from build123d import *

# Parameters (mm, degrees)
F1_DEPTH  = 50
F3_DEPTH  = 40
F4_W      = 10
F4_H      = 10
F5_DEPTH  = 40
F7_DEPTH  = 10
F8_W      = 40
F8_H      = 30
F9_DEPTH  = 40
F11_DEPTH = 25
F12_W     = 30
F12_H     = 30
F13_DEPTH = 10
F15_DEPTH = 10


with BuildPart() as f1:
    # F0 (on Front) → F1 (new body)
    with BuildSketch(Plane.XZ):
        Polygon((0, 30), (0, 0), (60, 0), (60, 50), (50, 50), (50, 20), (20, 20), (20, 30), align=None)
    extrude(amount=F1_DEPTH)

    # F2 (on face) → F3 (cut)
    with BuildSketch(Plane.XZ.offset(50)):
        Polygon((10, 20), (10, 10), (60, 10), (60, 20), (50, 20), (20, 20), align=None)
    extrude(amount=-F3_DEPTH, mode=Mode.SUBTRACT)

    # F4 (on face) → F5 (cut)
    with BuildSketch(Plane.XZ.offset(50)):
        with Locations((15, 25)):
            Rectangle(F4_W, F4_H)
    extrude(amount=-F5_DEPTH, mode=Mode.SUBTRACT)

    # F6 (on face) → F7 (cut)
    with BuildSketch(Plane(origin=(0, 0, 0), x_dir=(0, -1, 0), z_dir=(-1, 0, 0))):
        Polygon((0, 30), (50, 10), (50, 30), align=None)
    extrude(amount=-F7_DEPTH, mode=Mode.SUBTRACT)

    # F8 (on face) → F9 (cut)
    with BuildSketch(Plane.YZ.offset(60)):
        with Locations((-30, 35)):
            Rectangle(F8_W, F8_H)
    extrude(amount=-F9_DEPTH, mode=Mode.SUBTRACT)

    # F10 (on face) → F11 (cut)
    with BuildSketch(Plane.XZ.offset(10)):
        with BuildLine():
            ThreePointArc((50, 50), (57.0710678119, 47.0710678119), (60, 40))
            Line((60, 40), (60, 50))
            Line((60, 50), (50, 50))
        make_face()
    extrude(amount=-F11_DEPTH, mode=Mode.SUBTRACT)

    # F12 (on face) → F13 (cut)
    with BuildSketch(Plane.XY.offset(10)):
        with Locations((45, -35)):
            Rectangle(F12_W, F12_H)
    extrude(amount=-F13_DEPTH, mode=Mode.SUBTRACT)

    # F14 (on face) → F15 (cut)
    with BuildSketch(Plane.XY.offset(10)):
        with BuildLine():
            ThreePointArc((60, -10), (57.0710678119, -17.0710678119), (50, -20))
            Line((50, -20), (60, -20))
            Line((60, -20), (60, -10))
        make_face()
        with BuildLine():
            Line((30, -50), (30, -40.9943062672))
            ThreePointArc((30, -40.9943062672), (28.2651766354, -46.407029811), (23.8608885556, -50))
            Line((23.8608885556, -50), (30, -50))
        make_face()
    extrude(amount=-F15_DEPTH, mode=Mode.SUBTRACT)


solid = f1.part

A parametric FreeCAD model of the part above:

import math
import FreeCAD as App
import Part
import Sketcher

V = App.Vector
Q = App.Units.Quantity


def add_polygon(sketch, points):
    """Adds a closed chain of lines whose ends are joined by coincident constraints."""
    first, n = sketch.GeometryCount, len(points)
    for a, b in zip(points, points[1:] + points[:1]):
        sketch.addGeometry(Part.LineSegment(App.Vector(*a, 0), App.Vector(*b, 0)), False)
    for i in range(n):
        sketch.addConstraint(Sketcher.Constraint("Coincident", first + i, 2, first + (i + 1) % n, 1))

doc = App.newDocument("Part")
body = doc.addObject("PartDesign::Body", "Body")

# Sketch on XZ plane
sketch1 = body.newObject("Sketcher::SketchObject", "Sketch")
sketch1.AttachmentSupport = (doc.getObject("XZ_Plane"), [""])
sketch1.MapMode = "FlatFace"
add_polygon(sketch1, [(0, 30), (0, 0), (60, 0), (60, 50), (50, 50), (50, 20), (20, 20), (20, 30)])  # lines 0-7
sketch1.addConstraint([
    Sketcher.Constraint("Vertical", 0),
    Sketcher.Constraint("Horizontal", 1),
    Sketcher.Constraint("Vertical", 2),
    Sketcher.Constraint("Horizontal", 3),
    Sketcher.Constraint("Vertical", 4),
    Sketcher.Constraint("Horizontal", 5),
    Sketcher.Constraint("Vertical", 6),
    Sketcher.Constraint("Horizontal", 7),
    Sketcher.Constraint("Coincident", 0, 2, -1, 1),
    Sketcher.Constraint("Equal", 5, 0),
    Sketcher.Constraint("Equal", 0, 4),
    Sketcher.Constraint("Equal", 3, 6),
    Sketcher.Constraint("DistanceX", 1, 1, 1, 2, Q("60 mm")),
    Sketcher.Constraint("DistanceX", 3, 2, 3, 1, Q("10 mm")),
    Sketcher.Constraint("DistanceX", 5, 2, 5, 1, Q("30 mm")),
])
pad1 = body.newObject("PartDesign::Pad", "Pad")
pad1.Profile = sketch1
pad1.Length = 50

# Sketch on XZ plane
sketch2 = body.newObject("Sketcher::SketchObject", "Sketch001")
sketch2.AttachmentSupport = (doc.getObject("XZ_Plane"), [""])
sketch2.MapMode = "FlatFace"
sketch2.AttachmentOffset = App.Placement(V(0, 0, 50), App.Rotation())
add_polygon(sketch2, [(10, 20), (10, 10), (60, 10), (60, 20)])  # lines 0-3
sketch2.addConstraint([
    Sketcher.Constraint("Vertical", 0),
    Sketcher.Constraint("Horizontal", 1),
    Sketcher.Constraint("Vertical", 2),
    Sketcher.Constraint("Horizontal", 3),
    Sketcher.Constraint("DistanceX", 1, 1, 1, 2, Q("50 mm")),
    Sketcher.Constraint("DistanceY", 0, 2, 0, 1, Q("10 mm")),
    Sketcher.Constraint("DistanceX", -1, 1, 0, 2, Q("10 mm")),
    Sketcher.Constraint("DistanceY", -1, 1, 0, 2, Q("10 mm")),
])
pocket1 = body.newObject("PartDesign::Pocket", "Pocket")
pocket1.Profile = sketch2
pocket1.Length = 40

# Sketch on XZ plane
sketch3 = body.newObject("Sketcher::SketchObject", "Sketch002")
sketch3.AttachmentSupport = (doc.getObject("XZ_Plane"), [""])
sketch3.MapMode = "FlatFace"
sketch3.AttachmentOffset = App.Placement(V(0, 0, 50), App.Rotation())
add_polygon(sketch3, [(10, 30), (10, 20), (20, 20), (20, 30)])  # lines 0-3
sketch3.addConstraint([
    Sketcher.Constraint("Vertical", 0),
    Sketcher.Constraint("Horizontal", 1),
    Sketcher.Constraint("Vertical", 2),
    Sketcher.Constraint("Horizontal", 3),
    Sketcher.Constraint("Equal", 3, 0),
    Sketcher.Constraint("DistanceX", 1, 1, 1, 2, Q("10 mm")),
    Sketcher.Constraint("DistanceX", -1, 1, 0, 2, Q("10 mm")),
    Sketcher.Constraint("DistanceY", -1, 1, 0, 2, Q("20 mm")),
])
pocket2 = body.newObject("PartDesign::Pocket", "Pocket001")
pocket2.Profile = sketch3
pocket2.Length = 40

# Sketch on YZ plane
sketch4 = body.newObject("Sketcher::SketchObject", "Sketch003")
sketch4.AttachmentSupport = (doc.getObject("YZ_Plane"), [""])
sketch4.MapMode = "FlatFace"
add_polygon(sketch4, [(0, 30), (-50, 10), (-50, 30)])  # lines 0-2
sketch4.addConstraint([
    Sketcher.Constraint("Vertical", 1),
    Sketcher.Constraint("Horizontal", 2),
    Sketcher.Constraint("PointOnObject", 2, 2, -2),
    Sketcher.Constraint("DistanceX", 2, 1, 2, 2, Q("50 mm")),
    Sketcher.Constraint("DistanceY", 1, 1, 1, 2, Q("20 mm")),
    Sketcher.Constraint("DistanceY", -1, 1, 0, 2, Q("10 mm")),
])
pocket3 = body.newObject("PartDesign::Pocket", "Pocket002")
pocket3.Profile = sketch4
pocket3.Length = 10
pocket3.Reversed = True

# Sketch on YZ plane
sketch5 = body.newObject("Sketcher::SketchObject", "Sketch004")
sketch5.AttachmentSupport = (doc.getObject("YZ_Plane"), [""])
sketch5.MapMode = "FlatFace"
sketch5.AttachmentOffset = App.Placement(V(0, 0, 60), App.Rotation())
add_polygon(sketch5, [(-50, 50), (-50, 20), (-10, 20), (-10, 50)])  # lines 0-3
sketch5.addConstraint([
    Sketcher.Constraint("Vertical", 0),
    Sketcher.Constraint("Horizontal", 1),
    Sketcher.Constraint("Vertical", 2),
    Sketcher.Constraint("Horizontal", 3),
    Sketcher.Constraint("DistanceX", 1, 1, 1, 2, Q("40 mm")),
    Sketcher.Constraint("DistanceY", 0, 2, 0, 1, Q("30 mm")),
    Sketcher.Constraint("DistanceX", 0, 2, -1, 1, Q("50 mm")),
    Sketcher.Constraint("DistanceY", -1, 1, 0, 2, Q("20 mm")),
])
pocket4 = body.newObject("PartDesign::Pocket", "Pocket003")
pocket4.Profile = sketch5
pocket4.Length = 40

# Sketch on XZ plane
sketch6 = body.newObject("Sketcher::SketchObject", "Sketch005")
sketch6.AttachmentSupport = (doc.getObject("XZ_Plane"), [""])
sketch6.MapMode = "FlatFace"
sketch6.AttachmentOffset = App.Placement(V(0, 0, 10), App.Rotation())
sketch6.addGeometry([
    Part.ArcOfCircle(Part.Circle(V(50, 40, 0), V(0, 0, 1), 10), math.radians(0), math.radians(90)),
    Part.LineSegment(V(60, 40, 0), V(60, 50, 0)),
    Part.LineSegment(V(60, 50, 0), V(50, 50, 0)),
], False)
sketch6.addConstraint([
    Sketcher.Constraint("Tangent", 0, 1, 1, 1),
    Sketcher.Constraint("Coincident", 1, 2, 2, 1),
    Sketcher.Constraint("Tangent", 2, 2, 0, 2),
    Sketcher.Constraint("Vertical", 1),
    Sketcher.Constraint("Horizontal", 2),
    Sketcher.Constraint("Radius", 0, Q("10 mm")),
    Sketcher.Constraint("DistanceX", -1, 1, 0, 3, Q("50 mm")),
    Sketcher.Constraint("DistanceY", -1, 1, 0, 3, Q("40 mm")),
])
pocket5 = body.newObject("PartDesign::Pocket", "Pocket004")
pocket5.Profile = sketch6
pocket5.Length = 25

# Sketch on XY plane
sketch7 = body.newObject("Sketcher::SketchObject", "Sketch006")
sketch7.AttachmentSupport = (doc.getObject("XY_Plane"), [""])
sketch7.MapMode = "FlatFace"
sketch7.AttachmentOffset = App.Placement(V(0, 0, 10), App.Rotation())
add_polygon(sketch7, [(30, -20), (30, -50), (60, -50), (60, -20)])  # lines 0-3
sketch7.addConstraint([
    Sketcher.Constraint("Vertical", 0),
    Sketcher.Constraint("Horizontal", 1),
    Sketcher.Constraint("Vertical", 2),
    Sketcher.Constraint("Horizontal", 3),
    Sketcher.Constraint("Equal", 3, 0),
    Sketcher.Constraint("DistanceX", 1, 1, 1, 2, Q("30 mm")),
    Sketcher.Constraint("DistanceX", -1, 1, 0, 2, Q("30 mm")),
    Sketcher.Constraint("DistanceY", 0, 2, -1, 1, Q("50 mm")),
])
pocket6 = body.newObject("PartDesign::Pocket", "Pocket005")
pocket6.Profile = sketch7
pocket6.Length = 10

# Sketch on XY plane
sketch8 = body.newObject("Sketcher::SketchObject", "Sketch007")
sketch8.AttachmentSupport = (doc.getObject("XY_Plane"), [""])
sketch8.MapMode = "FlatFace"
sketch8.AttachmentOffset = App.Placement(V(0, 0, 10), App.Rotation())
sketch8.addGeometry([
    Part.ArcOfCircle(Part.Circle(V(50, -10, 0), V(0, 0, 1), 10), math.radians(-90), math.radians(0)),  # 0
    Part.LineSegment(V(50, -20, 0), V(60, -20, 0)),  # 1
    Part.LineSegment(V(60, -20, 0), V(60, -10, 0)),  # 2
    Part.LineSegment(V(30, -50, 0), V(30, -41, 0)),  # 3
    Part.ArcOfCircle(Part.Circle(V(20, -41, 0), V(0, 0, 1), 10), math.radians(-67), math.radians(-1)),  # 4
    Part.LineSegment(V(24, -50, 0), V(30, -50, 0)),  # 5
], False)
sketch8.addConstraint([
    Sketcher.Constraint("Tangent", 0, 1, 1, 1),
    Sketcher.Constraint("Coincident", 1, 2, 2, 1),
    Sketcher.Constraint("Tangent", 2, 2, 0, 2),
    Sketcher.Constraint("Coincident", 3, 2, 4, 2),
    Sketcher.Constraint("Coincident", 4, 1, 5, 1),
    Sketcher.Constraint("Coincident", 5, 2, 3, 1),
    Sketcher.Constraint("Horizontal", 1),
    Sketcher.Constraint("Vertical", 2),
    Sketcher.Constraint("Vertical", 3),
    Sketcher.Constraint("Horizontal", 5),
    Sketcher.Constraint("Equal", 0, 4),
    Sketcher.Constraint("Radius", 0, Q("10 mm")),
    Sketcher.Constraint("DistanceX", -1, 1, 0, 3, Q("50 mm")),
    Sketcher.Constraint("DistanceY", 0, 3, -1, 1, Q("10 mm")),
    Sketcher.Constraint("DistanceX", -1, 1, 3, 2, Q("30 mm")),
    Sketcher.Constraint("DistanceY", 4, 1, -1, 1, Q("50 mm")),
    Sketcher.Constraint("DistanceX", 5, 1, 5, 2, Q("6.139111 mm")),
    Sketcher.Constraint("DistanceY", 3, 1, 3, 2, Q("9.005694 mm")),
])
pocket7 = body.newObject("PartDesign::Pocket", "Pocket006")
pocket7.Profile = sketch8
pocket7.Length = 10

doc.recompute()
